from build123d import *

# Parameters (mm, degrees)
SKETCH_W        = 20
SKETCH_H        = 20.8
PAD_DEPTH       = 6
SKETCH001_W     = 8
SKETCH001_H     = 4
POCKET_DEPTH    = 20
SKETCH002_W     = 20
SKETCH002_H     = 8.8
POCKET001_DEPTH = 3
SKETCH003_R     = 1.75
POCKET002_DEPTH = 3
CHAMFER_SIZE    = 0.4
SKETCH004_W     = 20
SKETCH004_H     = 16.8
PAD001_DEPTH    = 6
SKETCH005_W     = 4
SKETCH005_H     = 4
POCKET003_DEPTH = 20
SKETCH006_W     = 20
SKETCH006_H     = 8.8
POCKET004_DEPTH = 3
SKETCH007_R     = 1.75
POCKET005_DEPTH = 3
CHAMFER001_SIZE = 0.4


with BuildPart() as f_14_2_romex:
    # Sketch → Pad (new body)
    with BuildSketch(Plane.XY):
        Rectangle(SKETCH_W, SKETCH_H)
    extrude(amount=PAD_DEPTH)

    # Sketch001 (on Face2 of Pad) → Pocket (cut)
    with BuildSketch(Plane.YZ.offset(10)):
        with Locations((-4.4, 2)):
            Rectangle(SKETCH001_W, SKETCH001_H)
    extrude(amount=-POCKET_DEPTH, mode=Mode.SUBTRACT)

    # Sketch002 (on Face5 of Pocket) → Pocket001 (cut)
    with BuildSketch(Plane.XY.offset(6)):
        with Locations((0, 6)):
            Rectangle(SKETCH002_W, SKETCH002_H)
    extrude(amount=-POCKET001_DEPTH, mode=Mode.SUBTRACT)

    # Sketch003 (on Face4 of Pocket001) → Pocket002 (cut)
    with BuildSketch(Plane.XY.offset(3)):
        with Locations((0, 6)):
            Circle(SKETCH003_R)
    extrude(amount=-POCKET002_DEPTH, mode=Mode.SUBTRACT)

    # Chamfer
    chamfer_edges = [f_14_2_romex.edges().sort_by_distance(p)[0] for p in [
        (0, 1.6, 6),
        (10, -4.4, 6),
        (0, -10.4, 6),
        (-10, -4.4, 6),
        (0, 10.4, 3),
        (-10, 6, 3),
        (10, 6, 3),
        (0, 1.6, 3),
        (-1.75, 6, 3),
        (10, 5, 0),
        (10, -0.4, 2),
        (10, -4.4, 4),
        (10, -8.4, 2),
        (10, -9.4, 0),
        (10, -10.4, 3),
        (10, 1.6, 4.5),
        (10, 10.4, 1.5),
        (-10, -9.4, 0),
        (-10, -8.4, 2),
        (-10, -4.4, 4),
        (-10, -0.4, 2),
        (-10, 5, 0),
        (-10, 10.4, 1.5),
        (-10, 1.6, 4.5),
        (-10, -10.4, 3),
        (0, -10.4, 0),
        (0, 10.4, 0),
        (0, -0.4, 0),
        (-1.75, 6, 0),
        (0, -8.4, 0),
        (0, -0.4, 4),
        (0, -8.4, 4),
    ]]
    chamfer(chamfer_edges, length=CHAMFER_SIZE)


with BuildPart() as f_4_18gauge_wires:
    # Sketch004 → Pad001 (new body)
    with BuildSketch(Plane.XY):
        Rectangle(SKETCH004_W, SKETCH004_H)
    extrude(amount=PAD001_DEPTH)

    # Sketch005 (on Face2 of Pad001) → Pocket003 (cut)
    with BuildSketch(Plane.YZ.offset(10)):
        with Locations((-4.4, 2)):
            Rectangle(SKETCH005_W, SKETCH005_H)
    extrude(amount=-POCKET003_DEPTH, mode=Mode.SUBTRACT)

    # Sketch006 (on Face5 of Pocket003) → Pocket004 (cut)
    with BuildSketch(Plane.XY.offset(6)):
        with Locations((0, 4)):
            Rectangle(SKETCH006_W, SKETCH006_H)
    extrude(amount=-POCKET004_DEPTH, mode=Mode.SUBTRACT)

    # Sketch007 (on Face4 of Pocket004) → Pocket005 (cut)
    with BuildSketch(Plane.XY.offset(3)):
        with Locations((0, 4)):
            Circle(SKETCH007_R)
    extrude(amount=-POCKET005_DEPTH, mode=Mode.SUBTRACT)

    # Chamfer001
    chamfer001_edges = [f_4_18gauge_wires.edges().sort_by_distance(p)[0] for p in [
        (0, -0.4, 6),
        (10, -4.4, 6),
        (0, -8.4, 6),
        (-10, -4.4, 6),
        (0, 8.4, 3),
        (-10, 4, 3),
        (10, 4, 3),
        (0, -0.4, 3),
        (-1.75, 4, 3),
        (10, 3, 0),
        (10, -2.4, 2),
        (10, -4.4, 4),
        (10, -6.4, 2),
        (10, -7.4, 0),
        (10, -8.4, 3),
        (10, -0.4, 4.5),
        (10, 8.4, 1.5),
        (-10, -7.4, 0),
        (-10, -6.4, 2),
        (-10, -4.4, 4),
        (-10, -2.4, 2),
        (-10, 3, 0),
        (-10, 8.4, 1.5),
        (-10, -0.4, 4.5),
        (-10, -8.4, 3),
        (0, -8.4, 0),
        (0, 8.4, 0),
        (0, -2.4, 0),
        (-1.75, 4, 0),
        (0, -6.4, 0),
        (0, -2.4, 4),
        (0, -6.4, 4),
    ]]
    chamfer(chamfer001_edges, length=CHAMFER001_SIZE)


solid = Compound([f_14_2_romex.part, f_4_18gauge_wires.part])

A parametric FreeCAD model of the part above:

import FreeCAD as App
import Part
import Sketcher

V = App.Vector

doc = App.newDocument("Part")
params = doc.addObject("Spreadsheet::Sheet", "Params")
for row, (alias, value) in enumerate([
    ("sketch1_width", "20 mm"),
    ("sketch1_height", "20.8 mm"),
    ("pad1_length", "6 mm"),
    ("sketch2_width", "8 mm"),
    ("sketch2_height", "4 mm"),
    ("pocket1_length", "20 mm"),
    ("sketch3_width", "20 mm"),
    ("sketch3_height", "8.8 mm"),
    ("pocket2_length", "3 mm"),
    ("sketch4_diameter", "3.5 mm"),
    ("pocket3_length", "3 mm"),
    ("chamfer_size", "0.4 mm"),
    ("sketch5_width", "20 mm"),
    ("sketch5_height", "16.8 mm"),
    ("pad2_length", "6 mm"),
    ("sketch6_width", "4 mm"),
    ("pocket4_length", "20 mm"),
    ("sketch7_width", "20 mm"),
    ("sketch7_height", "8.8 mm"),
    ("pocket5_length", "3 mm"),
    ("sketch8_diameter", "3.5 mm"),
    ("pocket6_length", "3 mm"),
    ("chamfer2_size", "0.4 mm"),
], start=1):
    params.set(f"A{row}", alias)
    params.set(f"B{row}", "=" + value)
    params.setAlias(f"B{row}", alias)

body = doc.addObject("PartDesign::Body", "Body")

# Sketch on XY plane
sketch1 = doc.addObject("Sketcher::SketchObject", "Sketch")
body.addObject(sketch1)
sketch1.AttachmentSupport = (doc.XY_Plane, [""])
sketch1.MapMode = "FlatFace"
sketch1.addGeometry(Part.LineSegment(V(-10, 10, 0), V(-10, -10, 0)), False)
sketch1.addGeometry(Part.LineSegment(V(-10, -10, 0), V(10, -10, 0)), False)
sketch1.addGeometry(Part.LineSegment(V(10, -10, 0), V(10, 10, 0)), False)
sketch1.addGeometry(Part.LineSegment(V(10, 10, 0), V(-10, 10, 0)), False)
sketch1.addConstraint(Sketcher.Constraint("Coincident", 0, 2, 1, 1))
sketch1.addConstraint(Sketcher.Constraint("Coincident", 1, 2, 2, 1))
sketch1.addConstraint(Sketcher.Constraint("Coincident", 2, 2, 3, 1))
sketch1.addConstraint(Sketcher.Constraint("Coincident", 3, 2, 0, 1))
sketch1.addConstraint(Sketcher.Constraint("Vertical", 0))
sketch1.addConstraint(Sketcher.Constraint("Horizontal", 1))
sketch1.addConstraint(Sketcher.Constraint("Vertical", 2))
sketch1.addConstraint(Sketcher.Constraint("Horizontal", 3))
sketch1.addConstraint(Sketcher.Constraint("Symmetric", 0, 2, 2, 2, -1, 1))
sketch1.addConstraint(Sketcher.Constraint("DistanceX", 1, 1, 1, 2, 20.0))
sketch1.addConstraint(Sketcher.Constraint("DistanceY", 0, 2, 0, 1, 20.8))
sketch1.setExpression("Constraints[9]", "Params.sketch1_width")
sketch1.setExpression("Constraints[10]", "Params.sketch1_height")
pad1 = doc.addObject("PartDesign::Pad", "Pad")
body.addObject(pad1)
pad1.Profile = sketch1
pad1.setExpression("Length", "Params.pad1_length")

# Sketch on YZ plane
sketch2 = doc.addObject("Sketcher::SketchObject", "Sketch001")
body.addObject(sketch2)
sketch2.AttachmentSupport = (doc.YZ_Plane, [""])
sketch2.MapMode = "FlatFace"
sketch2.AttachmentOffset = App.Placement(V(0, 0, 10), App.Rotation())
sketch2.addGeometry(Part.LineSegment(V(-8.4, 4, 0), V(-8.4, 0, 0)), False)
sketch2.addGeometry(Part.LineSegment(V(-8.4, 0, 0), V(-0.4, 0, 0)), False)
sketch2.addGeometry(Part.LineSegment(V(-0.4, 0, 0), V(-0.4, 4, 0)), False)
sketch2.addGeometry(Part.LineSegment(V(-0.4, 4, 0), V(-8.4, 4, 0)), False)
sketch2.addConstraint(Sketcher.Constraint("Coincident", 0, 2, 1, 1))
sketch2.addConstraint(Sketcher.Constraint("Coincident", 1, 2, 2, 1))
sketch2.addConstraint(Sketcher.Constraint("Coincident", 2, 2, 3, 1))
sketch2.addConstraint(Sketcher.Constraint("Coincident", 3, 2, 0, 1))
sketch2.addConstraint(Sketcher.Constraint("Vertical", 0))
sketch2.addConstraint(Sketcher.Constraint("Horizontal", 1))
sketch2.addConstraint(Sketcher.Constraint("Vertical", 2))
sketch2.addConstraint(Sketcher.Constraint("Horizontal", 3))
sketch2.addConstraint(Sketcher.Constraint("PointOnObject", 0, 2, -1))
sketch2.addConstraint(Sketcher.Constraint("DistanceX", 1, 1, 1, 2, 8.0))
sketch2.addConstraint(Sketcher.Constraint("DistanceY", 0, 2, 0, 1, 4.0))
sketch2.addConstraint(Sketcher.Constraint("DistanceX", 0, 2, -1, 1, 8.4))
sketch2.setExpression("Constraints[9]", "Params.sketch2_width")
sketch2.setExpression("Constraints[10]", "Params.sketch2_height")
pocket1 = doc.addObject("PartDesign::Pocket", "Pocket")
body.addObject(pocket1)
pocket1.Profile = sketch2
pocket1.setExpression("Length", "Params.pocket1_length")

# Sketch on XY plane
sketch3 = doc.addObject("Sketcher::SketchObject", "Sketch002")
body.addObject(sketch3)
sketch3.AttachmentSupport = (doc.XY_Plane, [""])
sketch3.MapMode = "FlatFace"
sketch3.AttachmentOffset = App.Placement(V(0, 0, 6), App.Rotation())
sketch3.addGeometry(Part.LineSegment(V(-10, 10, 0), V(-10, 2, 0)), False)
sketch3.addGeometry(Part.LineSegment(V(-10, 2, 0), V(10, 2, 0)), False)
sketch3.addGeometry(Part.LineSegment(V(10, 2, 0), V(10, 10, 0)), False)
sketch3.addGeometry(Part.LineSegment(V(10, 10, 0), V(-10, 10, 0)), False)
sketch3.addConstraint(Sketcher.Constraint("Coincident", 0, 2, 1, 1))
sketch3.addConstraint(Sketcher.Constraint("Coincident", 1, 2, 2, 1))
sketch3.addConstraint(Sketcher.Constraint("Coincident", 2, 2, 3, 1))
sketch3.addConstraint(Sketcher.Constraint("Coincident", 3, 2, 0, 1))
sketch3.addConstraint(Sketcher.Constraint("Vertical", 0))
sketch3.addConstraint(Sketcher.Constraint("Horizontal", 1))
sketch3.addConstraint(Sketcher.Constraint("Vertical", 2))
sketch3.addConstraint(Sketcher.Constraint("Horizontal", 3))
sketch3.addConstraint(Sketcher.Constraint("DistanceX", 1, 1, 1, 2, 20.0))
sketch3.addConstraint(Sketcher.Constraint("DistanceY", 0, 2, 0, 1, 8.8))
sketch3.addConstraint(Sketcher.Constraint("DistanceX", 0, 2, -1, 1, 10.0))
sketch3.addConstraint(Sketcher.Constraint("DistanceY", -1, 1, 0, 2, 1.6))
sketch3.setExpression("Constraints[8]", "Params.sketch3_width")
sketch3.setExpression("Constraints[9]", "Params.sketch3_height")
pocket2 = doc.addObject("PartDesign::Pocket", "Pocket001")
body.addObject(pocket2)
pocket2.Profile = sketch3
pocket2.setExpression("Length", "Params.pocket2_length")

# Sketch on XY plane
sketch4 = doc.addObject("Sketcher::SketchObject", "Sketch003")
body.addObject(sketch4)
sketch4.AttachmentSupport = (doc.XY_Plane, [""])
sketch4.MapMode = "FlatFace"
sketch4.AttachmentOffset = App.Placement(V(0, 0, 3), App.Rotation())
sketch4.addGeometry(Part.Circle(V(0, 6, 0), V(0, 0, 1), 1.8), False)
sketch4.addConstraint(Sketcher.Constraint("PointOnObject", 0, 3, -2))
sketch4.addConstraint(Sketcher.Constraint("Diameter", 0, 3.5))
sketch4.addConstraint(Sketcher.Constraint("DistanceY", -1, 1, 0, 3, 6.0))
sketch4.setExpression("Constraints[1]", "Params.sketch4_diameter")
pocket3 = doc.addObject("PartDesign::Pocket", "Pocket002")
body.addObject(pocket3)
pocket3.Profile = sketch4
pocket3.setExpression("Length", "Params.pocket3_length")
doc.recompute()

chamfer = doc.addObject("PartDesign::Chamfer", "Chamfer")
body.addObject(chamfer)
chamfer.Base = (pocket3, ["Edge1"])
chamfer.UseAllEdges = True
chamfer.setExpression("Size", "Params.chamfer_size")
body2 = doc.addObject("PartDesign::Body", "Body001")

# Sketch on XY plane
sketch5 = doc.addObject("Sketcher::SketchObject", "Sketch004")
body2.addObject(sketch5)
sketch5.AttachmentSupport = (doc.getObject("XY_Plane001"), [""])
sketch5.MapMode = "FlatFace"
sketch5.addGeometry(Part.LineSegment(V(-10, 8, 0), V(-10, -8, 0)), False)
sketch5.addGeometry(Part.LineSegment(V(-10, -8, 0), V(10, -8, 0)), False)
sketch5.addGeometry(Part.LineSegment(V(10, -8, 0), V(10, 8, 0)), False)
sketch5.addGeometry(Part.LineSegment(V(10, 8, 0), V(-10, 8, 0)), False)
sketch5.addConstraint(Sketcher.Constraint("Coincident", 0, 2, 1, 1))
sketch5.addConstraint(Sketcher.Constraint("Coincident", 1, 2, 2, 1))
sketch5.addConstraint(Sketcher.Constraint("Coincident", 2, 2, 3, 1))
sketch5.addConstraint(Sketcher.Constraint("Coincident", 3, 2, 0, 1))
sketch5.addConstraint(Sketcher.Constraint("Vertical", 0))
sketch5.addConstraint(Sketcher.Constraint("Horizontal", 1))
sketch5.addConstraint(Sketcher.Constraint("Vertical", 2))
sketch5.addConstraint(Sketcher.Constraint("Horizontal", 3))
sketch5.addConstraint(Sketcher.Constraint("Symmetric", 0, 2, 2, 2, -1, 1))
sketch5.addConstraint(Sketcher.Constraint("DistanceX", 1, 1, 1, 2, 20.0))
sketch5.addConstraint(Sketcher.Constraint("DistanceY", 0, 2, 0, 1, 16.8))
sketch5.setExpression("Constraints[9]", "Params.sketch5_width")
sketch5.setExpression("Constraints[10]", "Params.sketch5_height")
pad2 = doc.addObject("PartDesign::Pad", "Pad001")
body2.addObject(pad2)
pad2.Profile = sketch5
pad2.setExpression("Length", "Params.pad2_length")

# Sketch on YZ plane
sketch6 = doc.addObject("Sketcher::SketchObject", "Sketch005")
body2.addObject(sketch6)
sketch6.AttachmentSupport = (doc.getObject("YZ_Plane001"), [""])
sketch6.MapMode = "FlatFace"
sketch6.AttachmentOffset = App.Placement(V(0, 0, 10), App.Rotation())
sketch6.addGeometry(Part.LineSegment(V(-6.4, 4, 0), V(-6.4, 0, 0)), False)
sketch6.addGeometry(Part.LineSegment(V(-6.4, 0, 0), V(-2.4, 0, 0)), False)
sketch6.addGeometry(Part.LineSegment(V(-2.4, 0, 0), V(-2.4, 4, 0)), False)
sketch6.addGeometry(Part.LineSegment(V(-2.4, 4, 0), V(-6.4, 4, 0)), False)
sketch6.addConstraint(Sketcher.Constraint("Coincident", 0, 2, 1, 1))
sketch6.addConstraint(Sketcher.Constraint("Coincident", 1, 2, 2, 1))
sketch6.addConstraint(Sketcher.Constraint("Coincident", 2, 2, 3, 1))
sketch6.addConstraint(Sketcher.Constraint("Coincident", 3, 2, 0, 1))
sketch6.addConstraint(Sketcher.Constraint("Vertical", 0))
sketch6.addConstraint(Sketcher.Constraint("Horizontal", 1))
sketch6.addConstraint(Sketcher.Constraint("Vertical", 2))
sketch6.addConstraint(Sketcher.Constraint("Horizontal", 3))
sketch6.addConstraint(Sketcher.Constraint("PointOnObject", 0, 2, -1))
sketch6.addConstraint(Sketcher.Constraint("Equal", 3, 0))
sketch6.addConstraint(Sketcher.Constraint("DistanceX", 1, 1, 1, 2, 4.0))
sketch6.addConstraint(Sketcher.Constraint("DistanceX", 0, 2, -1, 1, 6.4))
sketch6.setExpression("Constraints[10]", "Params.sketch6_width")
pocket4 = doc.addObject("PartDesign::Pocket", "Pocket003")
body2.addObject(pocket4)
pocket4.Profile = sketch6
pocket4.setExpression("Length", "Params.pocket4_length")

# Sketch on XY plane
sketch7 = doc.addObject("Sketcher::SketchObject", "Sketch006")
body2.addObject(sketch7)
sketch7.AttachmentSupport = (doc.getObject("XY_Plane001"), [""])
sketch7.MapMode = "FlatFace"
sketch7.AttachmentOffset = App.Placement(V(0, 0, 6), App.Rotation())
sketch7.addGeometry(Part.LineSegment(V(-10, 8, 0), V(-10, 0, 0)), False)
sketch7.addGeometry(Part.LineSegment(V(-10, 0, 0), V(10, 0, 0)), False)
sketch7.addGeometry(Part.LineSegment(V(10, 0, 0), V(10, 8, 0)), False)
sketch7.addGeometry(Part.LineSegment(V(10, 8, 0), V(-10, 8, 0)), False)
sketch7.addConstraint(Sketcher.Constraint("Coincident", 0, 2, 1, 1))
sketch7.addConstraint(Sketcher.Constraint("Coincident", 1, 2, 2, 1))
sketch7.addConstraint(Sketcher.Constraint("Coincident", 2, 2, 3, 1))
sketch7.addConstraint(Sketcher.Constraint("Coincident", 3, 2, 0, 1))
sketch7.addConstraint(Sketcher.Constraint("Vertical", 0))
sketch7.addConstraint(Sketcher.Constraint("Horizontal", 1))
sketch7.addConstraint(Sketcher.Constraint("Vertical", 2))
sketch7.addConstraint(Sketcher.Constraint("Horizontal", 3))
sketch7.addConstraint(Sketcher.Constraint("DistanceX", 1, 1, 1, 2, 20.0))
sketch7.addConstraint(Sketcher.Constraint("DistanceY", 0, 2, 0, 1, 8.8))
sketch7.addConstraint(Sketcher.Constraint("DistanceX", 0, 2, -1, 1, 10.0))
sketch7.addConstraint(Sketcher.Constraint("DistanceY", 0, 2, -1, 1, 0.4))
sketch7.setExpression("Constraints[8]", "Params.sketch7_width")
sketch7.setExpression("Constraints[9]", "Params.sketch7_height")
pocket5 = doc.addObject("PartDesign::Pocket", "Pocket004")
body2.addObject(pocket5)
pocket5.Profile = sketch7
pocket5.setExpression("Length", "Params.pocket5_length")

# Sketch on XY plane
sketch8 = doc.addObject("Sketcher::SketchObject", "Sketch007")
body2.addObject(sketch8)
sketch8.AttachmentSupport = (doc.getObject("XY_Plane001"), [""])
sketch8.MapMode = "FlatFace"
sketch8.AttachmentOffset = App.Placement(V(0, 0, 3), App.Rotation())
sketch8.addGeometry(Part.Circle(V(0, 4, 0), V(0, 0, 1), 1.8), False)
sketch8.addConstraint(Sketcher.Constraint("PointOnObject", 0, 3, -2))
sketch8.addConstraint(Sketcher.Constraint("Diameter", 0, 3.5))
sketch8.addConstraint(Sketcher.Constraint("DistanceY", -1, 1, 0, 3, 4.0))
sketch8.setExpression("Constraints[1]", "Params.sketch8_diameter")
pocket6 = doc.addObject("PartDesign::Pocket", "Pocket005")
body2.addObject(pocket6)
pocket6.Profile = sketch8
pocket6.setExpression("Length", "Params.pocket6_length")
doc.recompute()

chamfer2 = doc.addObject("PartDesign::Chamfer", "Chamfer001")
body2.addObject(chamfer2)
chamfer2.Base = (pocket6, ["Edge1"])
chamfer2.UseAllEdges = True
chamfer2.setExpression("Size", "Params.chamfer2_size")

doc.recompute()
